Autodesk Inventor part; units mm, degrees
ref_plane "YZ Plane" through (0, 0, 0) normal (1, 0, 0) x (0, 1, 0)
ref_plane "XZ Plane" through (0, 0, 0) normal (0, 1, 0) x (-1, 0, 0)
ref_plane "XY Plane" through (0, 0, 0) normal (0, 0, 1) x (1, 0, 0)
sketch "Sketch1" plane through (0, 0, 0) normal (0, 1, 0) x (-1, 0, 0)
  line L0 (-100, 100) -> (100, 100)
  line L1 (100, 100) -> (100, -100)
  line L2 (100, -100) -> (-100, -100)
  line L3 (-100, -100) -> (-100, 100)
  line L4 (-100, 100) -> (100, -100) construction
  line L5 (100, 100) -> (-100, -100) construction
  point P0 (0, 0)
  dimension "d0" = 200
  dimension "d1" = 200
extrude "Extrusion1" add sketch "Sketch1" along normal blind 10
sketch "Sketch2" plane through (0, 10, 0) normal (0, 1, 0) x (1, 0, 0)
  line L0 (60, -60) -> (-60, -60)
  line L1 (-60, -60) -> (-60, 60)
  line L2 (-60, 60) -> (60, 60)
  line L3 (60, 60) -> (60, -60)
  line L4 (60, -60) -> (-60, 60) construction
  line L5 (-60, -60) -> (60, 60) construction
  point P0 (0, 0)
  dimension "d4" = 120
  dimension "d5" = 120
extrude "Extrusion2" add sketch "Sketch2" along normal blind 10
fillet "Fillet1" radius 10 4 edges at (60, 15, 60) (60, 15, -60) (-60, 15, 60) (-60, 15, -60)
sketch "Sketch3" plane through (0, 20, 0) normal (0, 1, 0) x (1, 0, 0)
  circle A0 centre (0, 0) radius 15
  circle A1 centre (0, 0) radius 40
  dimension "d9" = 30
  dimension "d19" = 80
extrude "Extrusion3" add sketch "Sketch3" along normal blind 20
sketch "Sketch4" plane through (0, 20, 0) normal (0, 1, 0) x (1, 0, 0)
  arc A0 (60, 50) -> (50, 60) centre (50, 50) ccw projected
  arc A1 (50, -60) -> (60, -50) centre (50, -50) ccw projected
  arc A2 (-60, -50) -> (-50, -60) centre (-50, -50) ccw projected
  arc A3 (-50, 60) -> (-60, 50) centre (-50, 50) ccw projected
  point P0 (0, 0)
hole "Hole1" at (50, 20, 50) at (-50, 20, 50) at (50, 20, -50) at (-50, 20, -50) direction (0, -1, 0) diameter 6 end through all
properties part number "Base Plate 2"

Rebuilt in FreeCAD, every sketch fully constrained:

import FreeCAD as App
import Part
import Sketcher


def edges_at(feature, points):
    """Names of the edges that pass closest to the given points."""
    edges = feature.Shape.Edges
    near = lambda p: min(range(len(edges)), key=lambda i: edges[i].distToShape(Part.Vertex(*p))[0])
    return sorted({f"Edge{near(p) + 1}" for p in points})


def add_polygon(sketch, points):
    """Adds a closed chain of lines whose ends are joined by coincident constraints."""
    first, n = sketch.GeometryCount, len(points)
    for a, b in zip(points, points[1:] + points[:1]):
        sketch.addGeometry(Part.LineSegment(App.Vector(*a, 0), App.Vector(*b, 0)), False)
    for i in range(n):
        sketch.addConstraint(Sketcher.Constraint("Coincident", first + i, 2, first + (i + 1) % n, 1))

doc = App.newDocument("Part")
body = doc.addObject("PartDesign::Body", "Body")

sketch1 = body.newObject("Sketcher::SketchObject", "Sketch")
sketch1.AttachmentSupport = (doc.getObject("XZ_Plane"), [""])
sketch1.MapMode = "FlatFace"
add_polygon(sketch1, [(-100, 100), (100, 100), (100, -100), (-100, -100)])
sketch1.addConstraint([
    Sketcher.Constraint("Horizontal", 0),
    Sketcher.Constraint("Vertical", 1),
    Sketcher.Constraint("Horizontal", 2),
    Sketcher.Constraint("Vertical", 3),
    Sketcher.Constraint("Symmetric", 0, 2, 2, 2, -1, 1),
    Sketcher.Constraint("Equal", 2, 1),
    Sketcher.Constraint("DistanceX", 0, 1, 0, 2, 200.0),
])
pad1 = body.newObject("PartDesign::Pad", "Pad")
pad1.Profile = sketch1
pad1.Length = 10
pad1.Reversed = True

sketch2 = body.newObject("Sketcher::SketchObject", "Sketch001")
sketch2.AttachmentSupport = (doc.getObject("XZ_Plane"), [""])
sketch2.MapMode = "FlatFace"
sketch2.AttachmentOffset = App.Placement(App.Vector(0, 0, -10), App.Rotation())
add_polygon(sketch2, [(-60, 60), (60, 60), (60, -60), (-60, -60)])
sketch2.addConstraint([
    Sketcher.Constraint("Horizontal", 0),
    Sketcher.Constraint("Vertical", 1),
    Sketcher.Constraint("Horizontal", 2),
    Sketcher.Constraint("Vertical", 3),
    Sketcher.Constraint("Symmetric", 0, 2, 2, 2, -1, 1),
    Sketcher.Constraint("Equal", 2, 1),
    Sketcher.Constraint("DistanceX", 0, 1, 0, 2, 120.0),
])
pad2 = body.newObject("PartDesign::Pad", "Pad001")
pad2.Profile = sketch2
pad2.Length = 10
pad2.Reversed = True
doc.recompute()

fillet = body.newObject("PartDesign::Fillet", "Fillet")
fillet.Base = (pad2, edges_at(pad2, [
    (60, 15, 60),
    (60, 15, -60),
    (-60, 15, 60),
    (-60, 15, -60),
]))
fillet.Radius = 10

sketch3 = body.newObject("Sketcher::SketchObject", "Sketch002")
sketch3.AttachmentSupport = (doc.getObject("XZ_Plane"), [""])
sketch3.MapMode = "FlatFace"
sketch3.AttachmentOffset = App.Placement(App.Vector(0, 0, -20), App.Rotation())
sketch3.addGeometry([
    Part.Circle(App.Vector(0, 0, 0), App.Vector(0, 0, 1), 40),
    Part.Circle(App.Vector(0, 0, 0), App.Vector(0, 0, 1), 15),
], False)
sketch3.addConstraint([
    Sketcher.Constraint("Coincident", 0, 3, -1, 1),
    Sketcher.Constraint("Coincident", 1, 3, -1, 1),
    Sketcher.Constraint("Diameter", 0, 80.0),
    Sketcher.Constraint("Diameter", 1, 30.0),
])
pad3 = body.newObject("PartDesign::Pad", "Pad002")
pad3.Profile = sketch3
pad3.Length = 20
pad3.Reversed = True

sketch4 = body.newObject("Sketcher::SketchObject", "Sketch003")
sketch4.AttachmentSupport = (doc.getObject("XZ_Plane"), [""])
sketch4.MapMode = "FlatFace"
sketch4.AttachmentOffset = App.Placement(App.Vector(0, 0, -20), App.Rotation())
sketch4.addGeometry([
    Part.Circle(App.Vector(50, 50, 0), App.Vector(0, 0, 1), 3),
    Part.Circle(App.Vector(-50, 50, 0), App.Vector(0, 0, 1), 3),
    Part.Circle(App.Vector(50, -50, 0), App.Vector(0, 0, 1), 3),
    Part.Circle(App.Vector(-50, -50, 0), App.Vector(0, 0, 1), 3),
], False)
sketch4.addConstraint([
    Sketcher.Constraint("Equal", 0, 1),
    Sketcher.Constraint("Equal", 1, 2),
    Sketcher.Constraint("Equal", 2, 3),
    Sketcher.Constraint("Symmetric", 1, 3, 2, 3, -1, 1),
    Sketcher.Constraint("Symmetric", 0, 3, 3, 3, -1, 1),
    Sketcher.Constraint("Symmetric", 0, 3, 1, 3, -2),
    Sketcher.Constraint("Diameter", 0, 6.0),
    Sketcher.Constraint("DistanceX", -1, 1, 0, 3, 50.0),
    Sketcher.Constraint("DistanceY", -1, 1, 0, 3, 50.0),
])
doc.recompute()
hole = body.newObject("PartDesign::Hole", "Hole")
hole.Profile = sketch4
hole.ThreadType = "None"
hole.Diameter = 6
hole.DepthType = "ThroughAll"
hole.Reversed = True

doc.recompute()
